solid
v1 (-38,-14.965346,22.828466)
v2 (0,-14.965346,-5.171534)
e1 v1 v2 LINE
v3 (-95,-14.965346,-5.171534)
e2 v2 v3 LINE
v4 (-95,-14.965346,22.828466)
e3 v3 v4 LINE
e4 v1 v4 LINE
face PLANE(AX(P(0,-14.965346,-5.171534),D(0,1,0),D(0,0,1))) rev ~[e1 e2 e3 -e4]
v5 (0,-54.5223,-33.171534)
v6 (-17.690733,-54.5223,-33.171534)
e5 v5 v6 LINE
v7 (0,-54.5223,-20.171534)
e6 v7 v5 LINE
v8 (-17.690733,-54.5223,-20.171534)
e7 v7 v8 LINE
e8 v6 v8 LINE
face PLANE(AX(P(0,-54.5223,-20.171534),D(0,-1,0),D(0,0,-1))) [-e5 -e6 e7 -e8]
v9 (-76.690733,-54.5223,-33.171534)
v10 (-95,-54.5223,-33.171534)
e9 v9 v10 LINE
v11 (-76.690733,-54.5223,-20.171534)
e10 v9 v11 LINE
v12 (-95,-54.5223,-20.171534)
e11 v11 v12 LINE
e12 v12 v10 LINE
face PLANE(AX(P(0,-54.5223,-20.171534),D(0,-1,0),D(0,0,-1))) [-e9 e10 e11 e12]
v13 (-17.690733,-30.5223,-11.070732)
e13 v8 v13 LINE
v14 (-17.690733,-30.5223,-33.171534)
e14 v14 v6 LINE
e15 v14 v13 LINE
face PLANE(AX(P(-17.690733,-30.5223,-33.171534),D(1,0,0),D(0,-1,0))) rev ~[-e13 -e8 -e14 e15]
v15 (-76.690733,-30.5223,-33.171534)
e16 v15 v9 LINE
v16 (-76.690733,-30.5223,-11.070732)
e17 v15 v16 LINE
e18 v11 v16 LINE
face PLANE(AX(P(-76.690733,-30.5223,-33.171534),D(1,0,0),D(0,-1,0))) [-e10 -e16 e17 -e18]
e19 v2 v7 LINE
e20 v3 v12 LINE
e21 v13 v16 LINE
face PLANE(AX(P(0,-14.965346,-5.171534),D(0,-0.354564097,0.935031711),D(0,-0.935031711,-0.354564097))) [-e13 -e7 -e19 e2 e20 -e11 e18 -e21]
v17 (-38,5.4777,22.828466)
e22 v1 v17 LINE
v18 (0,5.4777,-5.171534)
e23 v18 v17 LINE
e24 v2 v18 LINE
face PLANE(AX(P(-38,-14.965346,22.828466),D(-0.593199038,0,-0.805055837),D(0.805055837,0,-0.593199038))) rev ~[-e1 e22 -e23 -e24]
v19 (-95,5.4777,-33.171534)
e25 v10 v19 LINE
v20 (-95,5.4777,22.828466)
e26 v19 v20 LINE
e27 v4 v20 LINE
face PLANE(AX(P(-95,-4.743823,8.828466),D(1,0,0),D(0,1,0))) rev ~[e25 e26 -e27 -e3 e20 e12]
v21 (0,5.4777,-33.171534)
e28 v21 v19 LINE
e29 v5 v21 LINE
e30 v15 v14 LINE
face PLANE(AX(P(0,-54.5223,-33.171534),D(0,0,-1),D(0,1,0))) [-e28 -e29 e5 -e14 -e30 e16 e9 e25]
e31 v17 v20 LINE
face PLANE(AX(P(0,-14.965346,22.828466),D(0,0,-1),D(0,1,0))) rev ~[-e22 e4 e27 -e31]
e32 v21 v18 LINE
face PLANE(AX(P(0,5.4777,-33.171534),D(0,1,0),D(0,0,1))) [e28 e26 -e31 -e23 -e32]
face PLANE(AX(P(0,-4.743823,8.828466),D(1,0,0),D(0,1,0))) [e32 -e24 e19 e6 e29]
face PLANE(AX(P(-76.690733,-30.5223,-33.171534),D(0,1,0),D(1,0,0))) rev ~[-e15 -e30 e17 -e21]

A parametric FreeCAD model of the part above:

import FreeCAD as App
import Part
import Sketcher
from FreeCAD import Vector


def add_polygon(sketch, points):
    """Adds a closed chain of lines whose ends are joined by coincident constraints."""
    first, n = sketch.GeometryCount, len(points)
    for a, b in zip(points, points[1:] + points[:1]):
        sketch.addGeometry(Part.LineSegment(App.Vector(*a, 0), App.Vector(*b, 0)), False)
    for i in range(n):
        sketch.addConstraint(Sketcher.Constraint("Coincident", first + i, 2, first + (i + 1) % n, 1))

doc = App.newDocument("Part")
body = doc.addObject("PartDesign::Body", "Body")

# Sketch on YZ plane
sketch1 = doc.addObject("Sketcher::SketchObject", "Sketch")
body.addObject(sketch1)
sketch1.AttachmentSupport = (doc.YZ_Plane, [""])
sketch1.MapMode = "FlatFace"
add_polygon(sketch1, [(-15, 23), (-15, -5), (-55, -20), (-55, -33), (5, -33), (5, 23)])  # lines 0-5
sketch1.addConstraint([
    Sketcher.Constraint("Vertical", 0),
    Sketcher.Constraint("Vertical", 2),
    Sketcher.Constraint("Horizontal", 3),
    Sketcher.Constraint("Vertical", 4),
    Sketcher.Constraint("Horizontal", 5),
    Sketcher.Constraint("DistanceX", 3, 1, 3, 2, 60.0),
    Sketcher.Constraint("DistanceY", 0, 2, 0, 1, 28.0),
    Sketcher.Constraint("DistanceY", 2, 2, 2, 1, 13.0),
    Sketcher.Constraint("DistanceY", 4, 1, 4, 2, 56.0),
    Sketcher.Constraint("DistanceX", 1, 2, -1, 1, 54.5223),
    Sketcher.Constraint("DistanceX", 5, 2, 5, 1, 20.443046),
    Sketcher.Constraint("DistanceY", 0, 2, -1, 1, 5.171534),
])
pad1 = doc.addObject("PartDesign::Pad", "Pad")
body.addObject(pad1)
pad1.Profile = sketch1
pad1.Length = 95
pad1.Reversed = True

# Sketch on XZ plane
sketch2 = doc.addObject("Sketcher::SketchObject", "Sketch001")
body.addObject(sketch2)
sketch2.AttachmentSupport = (doc.XZ_Plane, [""])
sketch2.MapMode = "FlatFace"
sketch2.AttachmentOffset = App.Placement(Vector(0, 0, 14.965346), App.Rotation())
add_polygon(sketch2, [(0, 23), (-38, 23), (0, -5)])  # lines 0-2
sketch2.addConstraint([
    Sketcher.Constraint("Horizontal", 0),
    Sketcher.Constraint("Vertical", 2),
    Sketcher.Constraint("PointOnObject", 1, 2, -2),
    Sketcher.Constraint("DistanceX", 0, 2, 0, 1, 38.0),
    Sketcher.Constraint("DistanceY", 2, 1, 2, 2, 28.0),
    Sketcher.Constraint("DistanceY", -1, 1, 0, 2, 22.828466),
])
pocket1 = doc.addObject("PartDesign::Pocket", "Pocket")
body.addObject(pocket1)
pocket1.Profile = sketch2
pocket1.Length = 25

# Sketch on XY plane
sketch3 = doc.addObject("Sketcher::SketchObject", "Sketch002")
body.addObject(sketch3)
sketch3.AttachmentSupport = (doc.XY_Plane, [""])
sketch3.MapMode = "FlatFace"
sketch3.AttachmentOffset = App.Placement(Vector(0, 0, -33.171534), App.Rotation())
add_polygon(sketch3, [(-77, -55), (-77, -31), (-18, -31), (-18, -55)])  # lines 0-3
sketch3.addConstraint([
    Sketcher.Constraint("Vertical", 0),
    Sketcher.Constraint("Horizontal", 1),
    Sketcher.Constraint("Vertical", 2),
    Sketcher.Constraint("Horizontal", 3),
    Sketcher.Constraint("DistanceX", 1, 1, 1, 2, 59.0),
    Sketcher.Constraint("DistanceY", 0, 1, 0, 2, 24.0),
    Sketcher.Constraint("DistanceY", 0, 2, -1, 1, 30.5223),
    Sketcher.Constraint("DistanceX", 0, 2, -1, 1, 76.690733),
])
pocket2 = doc.addObject("PartDesign::Pocket", "Pocket001")
body.addObject(pocket2)
pocket2.Profile = sketch3
pocket2.Length = 25
pocket2.Reversed = True

doc.recompute()
